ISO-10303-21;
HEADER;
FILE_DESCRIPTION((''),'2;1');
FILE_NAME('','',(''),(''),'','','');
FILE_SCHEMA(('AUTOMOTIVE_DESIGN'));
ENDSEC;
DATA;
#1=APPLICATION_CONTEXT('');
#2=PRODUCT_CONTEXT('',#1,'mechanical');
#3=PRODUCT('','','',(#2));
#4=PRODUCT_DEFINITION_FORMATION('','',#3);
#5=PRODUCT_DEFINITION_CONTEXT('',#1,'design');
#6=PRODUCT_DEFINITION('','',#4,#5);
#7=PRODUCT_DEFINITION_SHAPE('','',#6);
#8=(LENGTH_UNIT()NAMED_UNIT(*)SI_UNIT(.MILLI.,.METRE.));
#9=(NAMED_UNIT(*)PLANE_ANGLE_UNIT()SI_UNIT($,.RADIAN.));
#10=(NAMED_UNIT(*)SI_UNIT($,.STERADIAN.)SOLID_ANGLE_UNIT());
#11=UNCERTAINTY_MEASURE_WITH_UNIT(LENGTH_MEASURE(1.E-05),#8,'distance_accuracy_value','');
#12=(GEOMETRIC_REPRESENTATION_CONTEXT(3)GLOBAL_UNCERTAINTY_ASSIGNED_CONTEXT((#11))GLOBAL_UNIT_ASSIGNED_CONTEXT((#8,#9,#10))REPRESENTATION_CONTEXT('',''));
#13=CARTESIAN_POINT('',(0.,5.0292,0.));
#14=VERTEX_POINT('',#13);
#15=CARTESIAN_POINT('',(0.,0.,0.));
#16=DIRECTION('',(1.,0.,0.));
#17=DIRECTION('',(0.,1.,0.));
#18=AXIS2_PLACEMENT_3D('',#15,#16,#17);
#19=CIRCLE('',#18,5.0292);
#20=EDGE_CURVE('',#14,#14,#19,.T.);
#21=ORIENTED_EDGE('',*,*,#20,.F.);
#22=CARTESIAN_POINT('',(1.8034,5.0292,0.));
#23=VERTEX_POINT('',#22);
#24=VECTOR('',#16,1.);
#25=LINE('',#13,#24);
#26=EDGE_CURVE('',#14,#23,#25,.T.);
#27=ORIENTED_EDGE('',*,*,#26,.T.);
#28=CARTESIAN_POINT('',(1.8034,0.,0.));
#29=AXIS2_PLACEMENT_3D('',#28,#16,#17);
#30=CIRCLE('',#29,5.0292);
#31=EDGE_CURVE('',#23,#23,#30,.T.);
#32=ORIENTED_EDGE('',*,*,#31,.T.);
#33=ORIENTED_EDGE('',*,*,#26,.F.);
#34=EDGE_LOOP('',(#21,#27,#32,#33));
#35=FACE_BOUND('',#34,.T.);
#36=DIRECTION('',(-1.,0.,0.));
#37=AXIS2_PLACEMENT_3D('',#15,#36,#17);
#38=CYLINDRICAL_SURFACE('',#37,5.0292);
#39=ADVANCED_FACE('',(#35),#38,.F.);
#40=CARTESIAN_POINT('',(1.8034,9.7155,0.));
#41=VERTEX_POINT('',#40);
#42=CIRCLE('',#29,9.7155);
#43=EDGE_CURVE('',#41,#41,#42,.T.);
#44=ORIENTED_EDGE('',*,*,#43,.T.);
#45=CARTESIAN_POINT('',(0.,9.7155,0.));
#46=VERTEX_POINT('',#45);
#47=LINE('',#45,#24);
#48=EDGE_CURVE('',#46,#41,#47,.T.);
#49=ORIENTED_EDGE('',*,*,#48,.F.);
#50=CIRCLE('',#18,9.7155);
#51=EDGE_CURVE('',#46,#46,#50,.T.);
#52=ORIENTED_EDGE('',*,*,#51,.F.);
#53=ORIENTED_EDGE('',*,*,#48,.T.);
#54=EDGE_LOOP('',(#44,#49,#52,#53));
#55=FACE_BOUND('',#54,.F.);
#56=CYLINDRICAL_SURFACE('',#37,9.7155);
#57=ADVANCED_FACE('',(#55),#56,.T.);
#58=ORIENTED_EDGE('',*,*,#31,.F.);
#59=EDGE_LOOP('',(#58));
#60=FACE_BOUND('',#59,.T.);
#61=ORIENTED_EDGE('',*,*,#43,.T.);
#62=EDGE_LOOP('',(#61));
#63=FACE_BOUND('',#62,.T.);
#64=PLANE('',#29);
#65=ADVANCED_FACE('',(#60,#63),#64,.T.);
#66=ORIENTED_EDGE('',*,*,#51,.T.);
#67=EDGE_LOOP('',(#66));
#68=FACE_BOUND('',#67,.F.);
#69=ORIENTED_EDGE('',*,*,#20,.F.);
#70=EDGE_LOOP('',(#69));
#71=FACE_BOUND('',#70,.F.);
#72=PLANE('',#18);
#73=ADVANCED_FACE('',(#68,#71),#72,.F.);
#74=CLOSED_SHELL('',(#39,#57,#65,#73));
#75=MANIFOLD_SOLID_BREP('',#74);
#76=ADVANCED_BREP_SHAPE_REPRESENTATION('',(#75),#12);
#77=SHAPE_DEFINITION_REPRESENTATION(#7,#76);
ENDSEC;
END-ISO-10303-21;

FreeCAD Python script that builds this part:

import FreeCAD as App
import Part
import Sketcher
Q = App.Units.Quantity

doc = App.newDocument("Part")
params = doc.addObject("Spreadsheet::Sheet", "Params")
for row, (alias, value) in enumerate([
    ("sketch1_diameter", "0.765 in"),
    ("sketch1_diameter2", "0.396 in"),
    ("pad1_length", "0.071 in"),
], start=1):
    params.set(f"A{row}", alias)
    params.set(f"B{row}", "=" + value)
    params.setAlias(f"B{row}", alias)

body = doc.addObject("PartDesign::Body", "Body")

sketch1 = body.newObject("Sketcher::SketchObject", "Sketch")
sketch1.AttachmentSupport = (doc.getObject("YZ_Plane"), [""])
sketch1.MapMode = "FlatFace"
sketch1.addGeometry([
    Part.Circle(App.Vector(0, 0, 0), App.Vector(0, 0, 1), 10),
    Part.Circle(App.Vector(0, 0, 0), App.Vector(0, 0, 1), 5),
], False)
sketch1.addConstraint([
    Sketcher.Constraint("Coincident", 0, 3, -1, 1),
    Sketcher.Constraint("Coincident", 1, 3, -1, 1),
    Sketcher.Constraint("Diameter", 0, Q("0.765 in")),
    Sketcher.Constraint("Diameter", 1, Q("0.396 in")),
])
sketch1.setExpression("Constraints[2]", "Params.sketch1_diameter")
sketch1.setExpression("Constraints[3]", "Params.sketch1_diameter2")
pad1 = body.newObject("PartDesign::Pad", "Pad")
pad1.Profile = sketch1
pad1.setExpression("Length", "Params.pad1_length")

doc.recompute()
